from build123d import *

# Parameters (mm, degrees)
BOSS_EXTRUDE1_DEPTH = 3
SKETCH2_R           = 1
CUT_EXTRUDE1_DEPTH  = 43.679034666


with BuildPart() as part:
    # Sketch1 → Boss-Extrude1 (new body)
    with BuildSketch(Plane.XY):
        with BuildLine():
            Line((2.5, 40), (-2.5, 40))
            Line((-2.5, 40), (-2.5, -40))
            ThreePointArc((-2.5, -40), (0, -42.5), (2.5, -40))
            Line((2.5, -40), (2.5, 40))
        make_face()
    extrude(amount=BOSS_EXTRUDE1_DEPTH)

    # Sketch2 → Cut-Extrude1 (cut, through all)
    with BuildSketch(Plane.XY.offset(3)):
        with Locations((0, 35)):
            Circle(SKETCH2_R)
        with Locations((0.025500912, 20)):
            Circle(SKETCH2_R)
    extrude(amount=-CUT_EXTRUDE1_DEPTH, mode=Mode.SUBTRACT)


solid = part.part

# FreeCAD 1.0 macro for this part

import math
import FreeCAD as App
import Part
import Sketcher
Q = App.Units.Quantity

doc = App.newDocument("Part")
body = doc.addObject("PartDesign::Body", "Body")

sketch1 = doc.addObject("Sketcher::SketchObject", "Sketch")
body.addObject(sketch1)
sketch1.AttachmentSupport = (doc.XY_Plane, [""])
sketch1.MapMode = "FlatFace"
sketch1.addGeometry([
    Part.LineSegment(App.Vector(2.5, 40, 0), App.Vector(-2.5, 40, 0)),
    Part.LineSegment(App.Vector(-2.5, 40, 0), App.Vector(-2.5, -40, 0)),
    Part.ArcOfCircle(Part.Circle(App.Vector(0, -40, 0), App.Vector(0, 0, 1), 2.5), math.radians(180), math.radians(360)),
    Part.LineSegment(App.Vector(2.5, -40, 0), App.Vector(2.5, 40, 0)),
], False)
sketch1.addConstraint([
    Sketcher.Constraint("Coincident", 0, 2, 1, 1),
    Sketcher.Constraint("Tangent", 1, 2, 2, 1),
    Sketcher.Constraint("Tangent", 2, 2, 3, 1),
    Sketcher.Constraint("Coincident", 3, 2, 0, 1),
    Sketcher.Constraint("Horizontal", 0),
    Sketcher.Constraint("Vertical", 1),
    Sketcher.Constraint("Vertical", 3),
    Sketcher.Constraint("Symmetric", 0, 2, 2, 2, -1, 1),
    Sketcher.Constraint("Radius", 2, Q("2.5 mm")),
    Sketcher.Constraint("DistanceY", 1, 2, 1, 1, Q("80 mm")),
])
pad1 = doc.addObject("PartDesign::Pad", "Pad")
body.addObject(pad1)
pad1.Profile = sketch1
pad1.Length = 3

sketch2 = doc.addObject("Sketcher::SketchObject", "Sketch001")
body.addObject(sketch2)
sketch2.AttachmentSupport = (doc.XY_Plane, [""])
sketch2.MapMode = "FlatFace"
sketch2.AttachmentOffset = App.Placement(App.Vector(0, 0, 3), App.Rotation())
sketch2.addGeometry([
    Part.Circle(App.Vector(0, 35, 0), App.Vector(0, 0, 1), 1),
    Part.Circle(App.Vector(0, 20, 0), App.Vector(0, 0, 1), 1),
], False)
sketch2.addConstraint([
    Sketcher.Constraint("Equal", 0, 1),
    Sketcher.Constraint("PointOnObject", 0, 3, -2),
    Sketcher.Constraint("Diameter", 0, Q("2 mm")),
    Sketcher.Constraint("DistanceY", -1, 1, 0, 3, Q("35 mm")),
    Sketcher.Constraint("DistanceY", -1, 1, 1, 3, Q("20 mm")),
    Sketcher.Constraint("DistanceX", -1, 1, 1, 3, Q("0.025501 mm")),
])
pocket1 = doc.addObject("PartDesign::Pocket", "Pocket")
body.addObject(pocket1)
pocket1.Profile = sketch2
pocket1.Type = "ThroughAll"

doc.recompute()
